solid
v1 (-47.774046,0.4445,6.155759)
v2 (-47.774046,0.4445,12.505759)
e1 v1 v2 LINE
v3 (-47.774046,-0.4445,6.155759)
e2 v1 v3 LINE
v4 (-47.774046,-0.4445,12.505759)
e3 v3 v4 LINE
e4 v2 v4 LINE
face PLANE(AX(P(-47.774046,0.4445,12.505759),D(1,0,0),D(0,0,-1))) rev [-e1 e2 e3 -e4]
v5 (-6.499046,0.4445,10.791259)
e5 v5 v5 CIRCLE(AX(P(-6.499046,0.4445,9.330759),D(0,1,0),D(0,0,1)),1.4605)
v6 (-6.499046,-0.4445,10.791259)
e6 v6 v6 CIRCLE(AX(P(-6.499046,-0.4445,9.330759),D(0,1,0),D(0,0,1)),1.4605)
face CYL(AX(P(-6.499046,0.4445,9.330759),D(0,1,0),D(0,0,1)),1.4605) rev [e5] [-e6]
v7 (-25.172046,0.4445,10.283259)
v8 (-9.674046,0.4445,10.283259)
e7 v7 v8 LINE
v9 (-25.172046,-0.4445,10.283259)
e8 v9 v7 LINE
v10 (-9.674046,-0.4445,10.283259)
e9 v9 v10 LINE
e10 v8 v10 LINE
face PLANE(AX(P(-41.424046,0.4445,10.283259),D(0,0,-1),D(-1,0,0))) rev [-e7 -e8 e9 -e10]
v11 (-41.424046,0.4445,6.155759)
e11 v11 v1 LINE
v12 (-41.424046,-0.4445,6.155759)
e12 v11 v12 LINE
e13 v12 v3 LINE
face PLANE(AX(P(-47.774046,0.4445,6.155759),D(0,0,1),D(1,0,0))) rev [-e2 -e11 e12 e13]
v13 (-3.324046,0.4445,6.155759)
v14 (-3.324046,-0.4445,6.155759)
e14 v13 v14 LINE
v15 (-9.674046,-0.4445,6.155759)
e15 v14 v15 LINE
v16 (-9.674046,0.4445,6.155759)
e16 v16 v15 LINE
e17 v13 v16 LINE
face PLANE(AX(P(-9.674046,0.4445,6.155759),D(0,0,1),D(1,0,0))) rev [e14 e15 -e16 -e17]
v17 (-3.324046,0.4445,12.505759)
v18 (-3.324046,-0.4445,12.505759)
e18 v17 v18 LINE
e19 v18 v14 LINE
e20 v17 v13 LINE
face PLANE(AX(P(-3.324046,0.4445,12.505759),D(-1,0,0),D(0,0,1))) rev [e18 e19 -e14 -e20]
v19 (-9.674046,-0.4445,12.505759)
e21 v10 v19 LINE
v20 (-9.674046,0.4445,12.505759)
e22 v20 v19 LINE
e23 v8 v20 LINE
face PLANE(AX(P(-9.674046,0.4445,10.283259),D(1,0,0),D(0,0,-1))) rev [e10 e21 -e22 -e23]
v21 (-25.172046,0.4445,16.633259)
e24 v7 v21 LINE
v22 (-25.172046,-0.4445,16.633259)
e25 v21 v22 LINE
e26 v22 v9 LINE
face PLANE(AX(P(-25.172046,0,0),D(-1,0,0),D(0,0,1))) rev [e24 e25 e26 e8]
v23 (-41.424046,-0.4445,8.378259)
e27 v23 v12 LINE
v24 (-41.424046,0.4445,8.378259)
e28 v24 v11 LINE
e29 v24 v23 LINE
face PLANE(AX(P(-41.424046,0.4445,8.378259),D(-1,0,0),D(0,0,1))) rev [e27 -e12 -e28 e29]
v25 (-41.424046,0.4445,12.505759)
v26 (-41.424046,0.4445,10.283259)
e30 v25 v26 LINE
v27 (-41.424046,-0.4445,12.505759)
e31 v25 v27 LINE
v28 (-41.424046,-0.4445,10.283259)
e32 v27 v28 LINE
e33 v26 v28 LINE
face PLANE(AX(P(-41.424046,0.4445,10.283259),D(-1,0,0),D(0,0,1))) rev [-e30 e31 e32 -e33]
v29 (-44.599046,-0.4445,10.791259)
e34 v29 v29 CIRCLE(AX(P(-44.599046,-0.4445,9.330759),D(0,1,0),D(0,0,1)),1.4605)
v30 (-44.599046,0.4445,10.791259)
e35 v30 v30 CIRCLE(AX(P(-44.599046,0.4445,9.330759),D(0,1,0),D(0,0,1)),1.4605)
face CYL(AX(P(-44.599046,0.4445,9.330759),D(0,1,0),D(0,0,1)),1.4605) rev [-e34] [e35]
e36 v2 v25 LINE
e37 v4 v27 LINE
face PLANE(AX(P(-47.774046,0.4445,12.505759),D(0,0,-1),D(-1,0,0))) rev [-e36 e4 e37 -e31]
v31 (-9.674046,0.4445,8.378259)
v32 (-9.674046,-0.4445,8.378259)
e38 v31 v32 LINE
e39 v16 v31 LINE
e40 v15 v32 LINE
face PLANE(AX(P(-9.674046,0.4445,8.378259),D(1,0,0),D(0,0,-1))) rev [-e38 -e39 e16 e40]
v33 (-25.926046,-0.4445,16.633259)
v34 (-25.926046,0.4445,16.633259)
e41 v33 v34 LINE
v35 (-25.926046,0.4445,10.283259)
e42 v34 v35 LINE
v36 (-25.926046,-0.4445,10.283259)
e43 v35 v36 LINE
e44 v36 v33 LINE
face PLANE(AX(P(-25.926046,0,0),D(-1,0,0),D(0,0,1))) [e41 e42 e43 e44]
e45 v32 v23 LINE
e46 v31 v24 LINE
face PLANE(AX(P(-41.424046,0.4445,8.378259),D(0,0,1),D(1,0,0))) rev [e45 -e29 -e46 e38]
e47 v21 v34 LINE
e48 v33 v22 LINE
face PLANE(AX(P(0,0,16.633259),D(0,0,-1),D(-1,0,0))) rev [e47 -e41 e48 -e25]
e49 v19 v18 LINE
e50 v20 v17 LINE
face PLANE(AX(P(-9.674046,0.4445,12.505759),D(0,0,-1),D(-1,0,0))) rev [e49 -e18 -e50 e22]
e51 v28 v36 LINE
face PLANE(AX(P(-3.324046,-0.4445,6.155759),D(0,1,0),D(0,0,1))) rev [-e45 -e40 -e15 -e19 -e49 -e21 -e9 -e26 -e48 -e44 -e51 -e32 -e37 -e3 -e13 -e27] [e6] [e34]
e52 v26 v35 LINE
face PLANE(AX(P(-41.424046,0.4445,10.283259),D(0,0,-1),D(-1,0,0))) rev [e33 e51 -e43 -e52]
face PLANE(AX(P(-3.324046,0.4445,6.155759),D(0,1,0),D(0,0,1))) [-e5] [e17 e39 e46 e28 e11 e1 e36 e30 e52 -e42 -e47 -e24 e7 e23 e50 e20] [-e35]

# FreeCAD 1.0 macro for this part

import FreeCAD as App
import Part
import Sketcher
from FreeCAD import Vector
Q = App.Units.Quantity

doc = App.newDocument("Part")
params = doc.addObject("Spreadsheet::Sheet", "Params")
for row, (alias, value) in enumerate([
    ("sketch1_width", "1.25 in"),
    ("sketch1_width2", "0.25 in"),
    ("pad1_length", "0.035 in"),
    ("sketch2_diameter", "0.115 in"),
    ("hole_diameter", "0.115 in"),
    ("sketch3_height", "0.035 in"),
    ("pad2_length", "0.25 in"),
    ("sketch4_height", "0.25 in"),
    ("sketch4_width", "0.035 in"),
    ("pad3_length", "0.005 in"),
    ("sketch5_height", "0.25 in"),
    ("sketch5_width", "0.035 in"),
    ("pad4_length", "0.005 in"),
], start=1):
    params.set(f"A{row}", alias)
    params.set(f"B{row}", "=" + value)
    params.setAlias(f"B{row}", alias)

body = doc.addObject("PartDesign::Body", "Body")

sketch1 = doc.addObject("Sketcher::SketchObject", "Sketch")
body.addObject(sketch1)
sketch1.AttachmentSupport = (doc.XZ_Plane, [""])
sketch1.MapMode = "FlatFace"
sketch1.addGeometry([
    Part.LineSegment(Vector(-41.4, 12.5, 0), Vector(-41.4, 10.3, 0)),
    Part.LineSegment(Vector(-41.4, 10.3, 0), Vector(-9.7, 10.3, 0)),
    Part.LineSegment(Vector(-9.7, 10.3, 0), Vector(-9.7, 12.5, 0)),
    Part.LineSegment(Vector(-9.7, 12.5, 0), Vector(-3.3, 12.5, 0)),
    Part.LineSegment(Vector(-3.3, 12.5, 0), Vector(-3.3, 6.2, 0)),
    Part.LineSegment(Vector(-3.3, 6.2, 0), Vector(-9.7, 6.2, 0)),
    Part.LineSegment(Vector(-9.7, 6.2, 0), Vector(-9.7, 8.4, 0)),
    Part.LineSegment(Vector(-9.7, 8.4, 0), Vector(-41.4, 8.4, 0)),
    Part.LineSegment(Vector(-41.4, 8.4, 0), Vector(-41.4, 6.2, 0)),
    Part.LineSegment(Vector(-41.4, 6.2, 0), Vector(-47.8, 6.2, 0)),
    Part.LineSegment(Vector(-47.8, 6.2, 0), Vector(-47.8, 12.5, 0)),
    Part.LineSegment(Vector(-47.8, 12.5, 0), Vector(-41.4, 12.5, 0)),
], False)
sketch1.addConstraint([
    Sketcher.Constraint("Coincident", 0, 2, 1, 1),
    Sketcher.Constraint("Coincident", 1, 2, 2, 1),
    Sketcher.Constraint("Coincident", 2, 2, 3, 1),
    Sketcher.Constraint("Coincident", 3, 2, 4, 1),
    Sketcher.Constraint("Coincident", 4, 2, 5, 1),
    Sketcher.Constraint("Coincident", 5, 2, 6, 1),
    Sketcher.Constraint("Coincident", 6, 2, 7, 1),
    Sketcher.Constraint("Coincident", 7, 2, 8, 1),
    Sketcher.Constraint("Coincident", 8, 2, 9, 1),
    Sketcher.Constraint("Coincident", 9, 2, 10, 1),
    Sketcher.Constraint("Coincident", 10, 2, 11, 1),
    Sketcher.Constraint("Coincident", 11, 2, 0, 1),
    Sketcher.Constraint("Vertical", 0),
    Sketcher.Constraint("Horizontal", 1),
    Sketcher.Constraint("Vertical", 2),
    Sketcher.Constraint("Horizontal", 3),
    Sketcher.Constraint("Vertical", 4),
    Sketcher.Constraint("Horizontal", 5),
    Sketcher.Constraint("Vertical", 6),
    Sketcher.Constraint("Horizontal", 7),
    Sketcher.Constraint("Vertical", 8),
    Sketcher.Constraint("Horizontal", 9),
    Sketcher.Constraint("Vertical", 10),
    Sketcher.Constraint("Horizontal", 11),
    Sketcher.Constraint("Horizontal", 5, 2, 8, 2),
    Sketcher.Constraint("Horizontal", 3, 2, 10, 2),
    Sketcher.Constraint("Vertical", 2, 2, 5, 2),
    Sketcher.Constraint("Vertical", 0, 2, 7, 2),
    Sketcher.Constraint("Equal", 5, 9),
    Sketcher.Constraint("Equal", 11, 4),
    Sketcher.Constraint("Equal", 2, 6),
    Sketcher.Constraint("DistanceX", 1, 1, 1, 2, Q("1.25 in")),
    Sketcher.Constraint("DistanceX", 3, 1, 3, 2, Q("0.25 in")),
    Sketcher.Constraint("DistanceY", 0, 2, 0, 1, Q("0.0875 in")),
    Sketcher.Constraint("DistanceY", -1, 1, 0, 2, 10.283259),
    Sketcher.Constraint("DistanceX", 0, 2, -1, 1, 41.424046),
])
sketch1.setExpression("Constraints[31]", "Params.sketch1_width")
sketch1.setExpression("Constraints[32]", "Params.sketch1_width2")
pad1 = doc.addObject("PartDesign::Pad", "Pad")
body.addObject(pad1)
pad1.Profile = sketch1
pad1.setExpression("Length", "Params.pad1_length")
pad1.Midplane = True

sketch2 = doc.addObject("Sketcher::SketchObject", "Sketch001")
body.addObject(sketch2)
sketch2.AttachmentSupport = (doc.XZ_Plane, [""])
sketch2.MapMode = "FlatFace"
sketch2.AttachmentOffset = App.Placement(Vector(0, 0, -0.0175 * 25.4), App.Rotation())
sketch2.addGeometry(Part.Circle(Vector(-44.6, 9.3, 0), Vector(0, 0, 1), 1.5), False)
sketch2.addConstraint([
    Sketcher.Constraint("Diameter", 0, Q("0.115 in")),
    Sketcher.Constraint("DistanceY", -1, 1, 0, 3, 9.330759),
    Sketcher.Constraint("DistanceX", 0, 3, -1, 1, 44.599046),
])
sketch2.setExpression("Constraints[0]", "Params.sketch2_diameter")
doc.recompute()
hole = doc.addObject("PartDesign::Hole", "Hole")
body.addObject(hole)
hole.Profile = sketch2
hole.ThreadType = "None"
hole.setExpression("Diameter", "Params.hole_diameter")
hole.DepthType = "ThroughAll"
hole.Reversed = True
doc.recompute()

datumplane = doc.addObject("PartDesign::Plane", "DatumPlane")
body.addObject(datumplane)
datumplane.AttachmentSupport = (doc.YZ_Plane, [""])
datumplane.MapMode = "FlatFace"
datumplane.AttachmentOffset = App.Placement(Vector(0, 0, -25.549046), App.Rotation())
mirrored = doc.addObject("PartDesign::Mirrored", "Mirrored")
body.addObject(mirrored)
mirrored.Originals = [hole]
mirrored.MirrorPlane = (datumplane, [""])
body.Tip = mirrored

sketch3 = doc.addObject("Sketcher::SketchObject", "Sketch002")
body.addObject(sketch3)
sketch3.AttachmentSupport = (doc.XY_Plane, [""])
sketch3.MapMode = "FlatFace"
sketch3.AttachmentOffset = App.Placement(Vector(0, 0, 10.283259), App.Rotation())
sketch3.addGeometry([
    Part.LineSegment(Vector(-25.8, 0.4, 0), Vector(-25.8, -0.4, 0)),
    Part.LineSegment(Vector(-25.8, -0.4, 0), Vector(-25.3, -0.4, 0)),
    Part.LineSegment(Vector(-25.3, -0.4, 0), Vector(-25.3, 0.4, 0)),
    Part.LineSegment(Vector(-25.3, 0.4, 0), Vector(-25.8, 0.4, 0)),
], False)
sketch3.addConstraint([
    Sketcher.Constraint("Coincident", 0, 2, 1, 1),
    Sketcher.Constraint("Coincident", 1, 2, 2, 1),
    Sketcher.Constraint("Coincident", 2, 2, 3, 1),
    Sketcher.Constraint("Coincident", 3, 2, 0, 1),
    Sketcher.Constraint("Vertical", 0),
    Sketcher.Constraint("Horizontal", 1),
    Sketcher.Constraint("Vertical", 2),
    Sketcher.Constraint("Horizontal", 3),
    Sketcher.Constraint("DistanceY", 0, 2, 0, 1, Q("0.035 in")),
    Sketcher.Constraint("DistanceX", 1, 1, 1, 2, 0.5),
    Sketcher.Constraint("DistanceY", 0, 2, -1, 1, Q("0.0175 in")),
    Sketcher.Constraint("DistanceX", 0, 2, -1, 1, 25.799046),
])
sketch3.setExpression("Constraints[8]", "Params.sketch3_height")
pad2 = doc.addObject("PartDesign::Pad", "Pad001")
body.addObject(pad2)
pad2.Profile = sketch3
pad2.setExpression("Length", "Params.pad2_length")

sketch4 = doc.addObject("Sketcher::SketchObject", "Sketch003")
body.addObject(sketch4)
sketch4.AttachmentSupport = (doc.YZ_Plane, [""])
sketch4.MapMode = "FlatFace"
sketch4.AttachmentOffset = App.Placement(Vector(0, 0, -25.799046), App.Rotation())
sketch4.addGeometry([
    Part.LineSegment(Vector(0.4, 10.3, 0), Vector(-0.4, 10.3, 0)),
    Part.LineSegment(Vector(-0.4, 10.3, 0), Vector(-0.4, 16.6, 0)),
    Part.LineSegment(Vector(-0.4, 16.6, 0), Vector(0.4, 16.6, 0)),
    Part.LineSegment(Vector(0.4, 16.6, 0), Vector(0.4, 10.3, 0)),
], False)
sketch4.addConstraint([
    Sketcher.Constraint("Coincident", 0, 2, 1, 1),
    Sketcher.Constraint("Coincident", 1, 2, 2, 1),
    Sketcher.Constraint("Coincident", 2, 2, 3, 1),
    Sketcher.Constraint("Coincident", 3, 2, 0, 1),
    Sketcher.Constraint("Horizontal", 0),
    Sketcher.Constraint("Vertical", 1),
    Sketcher.Constraint("Horizontal", 2),
    Sketcher.Constraint("Vertical", 3),
    Sketcher.Constraint("DistanceY", 1, 1, 1, 2, Q("0.25 in")),
    Sketcher.Constraint("DistanceX", 0, 2, 0, 1, Q("0.035 in")),
    Sketcher.Constraint("DistanceX", 0, 2, -1, 1, Q("0.0175 in")),
    Sketcher.Constraint("DistanceY", -1, 1, 0, 2, 10.283259),
])
sketch4.setExpression("Constraints[8]", "Params.sketch4_height")
sketch4.setExpression("Constraints[9]", "Params.sketch4_width")
pad3 = doc.addObject("PartDesign::Pad", "Pad002")
body.addObject(pad3)
pad3.Profile = sketch4
pad3.setExpression("Length", "Params.pad3_length")
pad3.Reversed = True

sketch5 = doc.addObject("Sketcher::SketchObject", "Sketch004")
body.addObject(sketch5)
sketch5.AttachmentSupport = (doc.YZ_Plane, [""])
sketch5.MapMode = "FlatFace"
sketch5.AttachmentOffset = App.Placement(Vector(0, 0, -25.299046), App.Rotation())
sketch5.addGeometry([
    Part.LineSegment(Vector(0.4, 16.6, 0), Vector(-0.4, 16.6, 0)),
    Part.LineSegment(Vector(-0.4, 16.6, 0), Vector(-0.4, 10.3, 0)),
    Part.LineSegment(Vector(-0.4, 10.3, 0), Vector(0.4, 10.3, 0)),
    Part.LineSegment(Vector(0.4, 10.3, 0), Vector(0.4, 16.6, 0)),
], False)
sketch5.addConstraint([
    Sketcher.Constraint("Coincident", 0, 2, 1, 1),
    Sketcher.Constraint("Coincident", 1, 2, 2, 1),
    Sketcher.Constraint("Coincident", 2, 2, 3, 1),
    Sketcher.Constraint("Coincident", 3, 2, 0, 1),
    Sketcher.Constraint("Horizontal", 0),
    Sketcher.Constraint("Vertical", 1),
    Sketcher.Constraint("Horizontal", 2),
    Sketcher.Constraint("Vertical", 3),
    Sketcher.Constraint("DistanceY", 1, 2, 1, 1, Q("0.25 in")),
    Sketcher.Constraint("DistanceX", 0, 2, 0, 1, Q("0.035 in")),
    Sketcher.Constraint("DistanceX", 0, 2, -1, 1, Q("0.0175 in")),
    Sketcher.Constraint("DistanceY", -1, 1, 0, 2, 16.633259),
])
sketch5.setExpression("Constraints[8]", "Params.sketch5_height")
sketch5.setExpression("Constraints[9]", "Params.sketch5_width")
pad4 = doc.addObject("PartDesign::Pad", "Pad003")
body.addObject(pad4)
pad4.Profile = sketch5
pad4.setExpression("Length", "Params.pad4_length")

doc.recompute()
